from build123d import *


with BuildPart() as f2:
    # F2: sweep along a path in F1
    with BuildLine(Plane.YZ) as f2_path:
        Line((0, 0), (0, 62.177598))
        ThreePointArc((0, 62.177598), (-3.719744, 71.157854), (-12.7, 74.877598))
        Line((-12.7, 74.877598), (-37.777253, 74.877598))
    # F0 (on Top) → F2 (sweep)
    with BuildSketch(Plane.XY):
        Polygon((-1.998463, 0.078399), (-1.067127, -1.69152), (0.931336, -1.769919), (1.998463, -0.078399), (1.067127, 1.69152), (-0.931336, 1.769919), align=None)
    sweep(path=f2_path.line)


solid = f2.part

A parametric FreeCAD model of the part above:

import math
import FreeCAD as App
import Part
import Sketcher

V = App.Vector


def add_polygon(sketch, points):
    """Adds a closed chain of lines whose ends are joined by coincident constraints."""
    first, n = sketch.GeometryCount, len(points)
    for a, b in zip(points, points[1:] + points[:1]):
        sketch.addGeometry(Part.LineSegment(App.Vector(*a, 0), App.Vector(*b, 0)), False)
    for i in range(n):
        sketch.addConstraint(Sketcher.Constraint("Coincident", first + i, 2, first + (i + 1) % n, 1))

doc = App.newDocument("Part")
body = doc.addObject("PartDesign::Body", "Body")

# Sketch on XY plane
sketch1 = body.newObject("Sketcher::SketchObject", "Sketch")
sketch1.AttachmentSupport = (doc.getObject("XY_Plane"), [""])
sketch1.MapMode = "FlatFace"
add_polygon(sketch1, [(-1.998463, 0.078399), (-1.067127, -1.69152), (0.931336, -1.769919), (1.998463, -0.078399), (1.067127, 1.69152), (-0.931336, 1.769919)])  # lines 0-5
sketch1.addConstraint(Sketcher.Constraint("Symmetric", 0, 2, 3, 2, -1, 1))
sketch1.addConstraint(Sketcher.Constraint("Symmetric", 1, 2, 4, 2, -1, 1))
sketch1.addConstraint(Sketcher.Constraint("Symmetric", 2, 2, 5, 2, -1, 1))
sketch1.addConstraint(Sketcher.Constraint("Equal", 0, 1))
sketch1.addConstraint(Sketcher.Constraint("Equal", 1, 2))
sketch1.addConstraint(Sketcher.Constraint("Distance", 0, 2.0))
sketch1.addConstraint(Sketcher.Constraint("DistanceY", 2, 2, -1, 1, 0.078399))
sketch1.addConstraint(Sketcher.Constraint("DistanceY", 1, 2, 0, 2, 0.078399))
sketch1.addConstraint(Sketcher.Constraint("DistanceX", 4, 2, 2, 2, 2.929799))

# Sketch on YZ plane
sketch2 = body.newObject("Sketcher::SketchObject", "Sketch001")
sketch2.AttachmentSupport = (doc.getObject("YZ_Plane"), [""])
sketch2.MapMode = "FlatFace"
sketch2.addGeometry(Part.LineSegment(V(0, 0, 0), V(0, 62.177598, 0)), False)
sketch2.addGeometry(Part.ArcOfCircle(Part.Circle(V(-12.7, 62.177598, 0), V(0, 0, 1), 12.7), math.radians(0.000002), math.radians(89.999998)), False)
sketch2.addGeometry(Part.LineSegment(V(-12.7, 74.877598, 0), V(-37.777253, 74.877598, 0)), False)
sketch2.addConstraint(Sketcher.Constraint("Tangent", 0, 2, 1, 1))
sketch2.addConstraint(Sketcher.Constraint("Tangent", 1, 2, 2, 1))
sketch2.addConstraint(Sketcher.Constraint("Vertical", 0))
sketch2.addConstraint(Sketcher.Constraint("Horizontal", 2))
sketch2.addConstraint(Sketcher.Constraint("Coincident", 0, 1, -1, 1))
sketch2.addConstraint(Sketcher.Constraint("Radius", 1, 12.7))
sketch2.addConstraint(Sketcher.Constraint("DistanceY", 0, 1, 0, 2, 62.177598))
sketch2.addConstraint(Sketcher.Constraint("DistanceX", 2, 2, 2, 1, 25.077253))
doc.recompute()

additivepipe = body.newObject("PartDesign::AdditivePipe", "AdditivePipe")
additivepipe.Profile = sketch1
additivepipe.Spine = (sketch2, ["Edge1", "Edge2", "Edge3"])

doc.recompute()
